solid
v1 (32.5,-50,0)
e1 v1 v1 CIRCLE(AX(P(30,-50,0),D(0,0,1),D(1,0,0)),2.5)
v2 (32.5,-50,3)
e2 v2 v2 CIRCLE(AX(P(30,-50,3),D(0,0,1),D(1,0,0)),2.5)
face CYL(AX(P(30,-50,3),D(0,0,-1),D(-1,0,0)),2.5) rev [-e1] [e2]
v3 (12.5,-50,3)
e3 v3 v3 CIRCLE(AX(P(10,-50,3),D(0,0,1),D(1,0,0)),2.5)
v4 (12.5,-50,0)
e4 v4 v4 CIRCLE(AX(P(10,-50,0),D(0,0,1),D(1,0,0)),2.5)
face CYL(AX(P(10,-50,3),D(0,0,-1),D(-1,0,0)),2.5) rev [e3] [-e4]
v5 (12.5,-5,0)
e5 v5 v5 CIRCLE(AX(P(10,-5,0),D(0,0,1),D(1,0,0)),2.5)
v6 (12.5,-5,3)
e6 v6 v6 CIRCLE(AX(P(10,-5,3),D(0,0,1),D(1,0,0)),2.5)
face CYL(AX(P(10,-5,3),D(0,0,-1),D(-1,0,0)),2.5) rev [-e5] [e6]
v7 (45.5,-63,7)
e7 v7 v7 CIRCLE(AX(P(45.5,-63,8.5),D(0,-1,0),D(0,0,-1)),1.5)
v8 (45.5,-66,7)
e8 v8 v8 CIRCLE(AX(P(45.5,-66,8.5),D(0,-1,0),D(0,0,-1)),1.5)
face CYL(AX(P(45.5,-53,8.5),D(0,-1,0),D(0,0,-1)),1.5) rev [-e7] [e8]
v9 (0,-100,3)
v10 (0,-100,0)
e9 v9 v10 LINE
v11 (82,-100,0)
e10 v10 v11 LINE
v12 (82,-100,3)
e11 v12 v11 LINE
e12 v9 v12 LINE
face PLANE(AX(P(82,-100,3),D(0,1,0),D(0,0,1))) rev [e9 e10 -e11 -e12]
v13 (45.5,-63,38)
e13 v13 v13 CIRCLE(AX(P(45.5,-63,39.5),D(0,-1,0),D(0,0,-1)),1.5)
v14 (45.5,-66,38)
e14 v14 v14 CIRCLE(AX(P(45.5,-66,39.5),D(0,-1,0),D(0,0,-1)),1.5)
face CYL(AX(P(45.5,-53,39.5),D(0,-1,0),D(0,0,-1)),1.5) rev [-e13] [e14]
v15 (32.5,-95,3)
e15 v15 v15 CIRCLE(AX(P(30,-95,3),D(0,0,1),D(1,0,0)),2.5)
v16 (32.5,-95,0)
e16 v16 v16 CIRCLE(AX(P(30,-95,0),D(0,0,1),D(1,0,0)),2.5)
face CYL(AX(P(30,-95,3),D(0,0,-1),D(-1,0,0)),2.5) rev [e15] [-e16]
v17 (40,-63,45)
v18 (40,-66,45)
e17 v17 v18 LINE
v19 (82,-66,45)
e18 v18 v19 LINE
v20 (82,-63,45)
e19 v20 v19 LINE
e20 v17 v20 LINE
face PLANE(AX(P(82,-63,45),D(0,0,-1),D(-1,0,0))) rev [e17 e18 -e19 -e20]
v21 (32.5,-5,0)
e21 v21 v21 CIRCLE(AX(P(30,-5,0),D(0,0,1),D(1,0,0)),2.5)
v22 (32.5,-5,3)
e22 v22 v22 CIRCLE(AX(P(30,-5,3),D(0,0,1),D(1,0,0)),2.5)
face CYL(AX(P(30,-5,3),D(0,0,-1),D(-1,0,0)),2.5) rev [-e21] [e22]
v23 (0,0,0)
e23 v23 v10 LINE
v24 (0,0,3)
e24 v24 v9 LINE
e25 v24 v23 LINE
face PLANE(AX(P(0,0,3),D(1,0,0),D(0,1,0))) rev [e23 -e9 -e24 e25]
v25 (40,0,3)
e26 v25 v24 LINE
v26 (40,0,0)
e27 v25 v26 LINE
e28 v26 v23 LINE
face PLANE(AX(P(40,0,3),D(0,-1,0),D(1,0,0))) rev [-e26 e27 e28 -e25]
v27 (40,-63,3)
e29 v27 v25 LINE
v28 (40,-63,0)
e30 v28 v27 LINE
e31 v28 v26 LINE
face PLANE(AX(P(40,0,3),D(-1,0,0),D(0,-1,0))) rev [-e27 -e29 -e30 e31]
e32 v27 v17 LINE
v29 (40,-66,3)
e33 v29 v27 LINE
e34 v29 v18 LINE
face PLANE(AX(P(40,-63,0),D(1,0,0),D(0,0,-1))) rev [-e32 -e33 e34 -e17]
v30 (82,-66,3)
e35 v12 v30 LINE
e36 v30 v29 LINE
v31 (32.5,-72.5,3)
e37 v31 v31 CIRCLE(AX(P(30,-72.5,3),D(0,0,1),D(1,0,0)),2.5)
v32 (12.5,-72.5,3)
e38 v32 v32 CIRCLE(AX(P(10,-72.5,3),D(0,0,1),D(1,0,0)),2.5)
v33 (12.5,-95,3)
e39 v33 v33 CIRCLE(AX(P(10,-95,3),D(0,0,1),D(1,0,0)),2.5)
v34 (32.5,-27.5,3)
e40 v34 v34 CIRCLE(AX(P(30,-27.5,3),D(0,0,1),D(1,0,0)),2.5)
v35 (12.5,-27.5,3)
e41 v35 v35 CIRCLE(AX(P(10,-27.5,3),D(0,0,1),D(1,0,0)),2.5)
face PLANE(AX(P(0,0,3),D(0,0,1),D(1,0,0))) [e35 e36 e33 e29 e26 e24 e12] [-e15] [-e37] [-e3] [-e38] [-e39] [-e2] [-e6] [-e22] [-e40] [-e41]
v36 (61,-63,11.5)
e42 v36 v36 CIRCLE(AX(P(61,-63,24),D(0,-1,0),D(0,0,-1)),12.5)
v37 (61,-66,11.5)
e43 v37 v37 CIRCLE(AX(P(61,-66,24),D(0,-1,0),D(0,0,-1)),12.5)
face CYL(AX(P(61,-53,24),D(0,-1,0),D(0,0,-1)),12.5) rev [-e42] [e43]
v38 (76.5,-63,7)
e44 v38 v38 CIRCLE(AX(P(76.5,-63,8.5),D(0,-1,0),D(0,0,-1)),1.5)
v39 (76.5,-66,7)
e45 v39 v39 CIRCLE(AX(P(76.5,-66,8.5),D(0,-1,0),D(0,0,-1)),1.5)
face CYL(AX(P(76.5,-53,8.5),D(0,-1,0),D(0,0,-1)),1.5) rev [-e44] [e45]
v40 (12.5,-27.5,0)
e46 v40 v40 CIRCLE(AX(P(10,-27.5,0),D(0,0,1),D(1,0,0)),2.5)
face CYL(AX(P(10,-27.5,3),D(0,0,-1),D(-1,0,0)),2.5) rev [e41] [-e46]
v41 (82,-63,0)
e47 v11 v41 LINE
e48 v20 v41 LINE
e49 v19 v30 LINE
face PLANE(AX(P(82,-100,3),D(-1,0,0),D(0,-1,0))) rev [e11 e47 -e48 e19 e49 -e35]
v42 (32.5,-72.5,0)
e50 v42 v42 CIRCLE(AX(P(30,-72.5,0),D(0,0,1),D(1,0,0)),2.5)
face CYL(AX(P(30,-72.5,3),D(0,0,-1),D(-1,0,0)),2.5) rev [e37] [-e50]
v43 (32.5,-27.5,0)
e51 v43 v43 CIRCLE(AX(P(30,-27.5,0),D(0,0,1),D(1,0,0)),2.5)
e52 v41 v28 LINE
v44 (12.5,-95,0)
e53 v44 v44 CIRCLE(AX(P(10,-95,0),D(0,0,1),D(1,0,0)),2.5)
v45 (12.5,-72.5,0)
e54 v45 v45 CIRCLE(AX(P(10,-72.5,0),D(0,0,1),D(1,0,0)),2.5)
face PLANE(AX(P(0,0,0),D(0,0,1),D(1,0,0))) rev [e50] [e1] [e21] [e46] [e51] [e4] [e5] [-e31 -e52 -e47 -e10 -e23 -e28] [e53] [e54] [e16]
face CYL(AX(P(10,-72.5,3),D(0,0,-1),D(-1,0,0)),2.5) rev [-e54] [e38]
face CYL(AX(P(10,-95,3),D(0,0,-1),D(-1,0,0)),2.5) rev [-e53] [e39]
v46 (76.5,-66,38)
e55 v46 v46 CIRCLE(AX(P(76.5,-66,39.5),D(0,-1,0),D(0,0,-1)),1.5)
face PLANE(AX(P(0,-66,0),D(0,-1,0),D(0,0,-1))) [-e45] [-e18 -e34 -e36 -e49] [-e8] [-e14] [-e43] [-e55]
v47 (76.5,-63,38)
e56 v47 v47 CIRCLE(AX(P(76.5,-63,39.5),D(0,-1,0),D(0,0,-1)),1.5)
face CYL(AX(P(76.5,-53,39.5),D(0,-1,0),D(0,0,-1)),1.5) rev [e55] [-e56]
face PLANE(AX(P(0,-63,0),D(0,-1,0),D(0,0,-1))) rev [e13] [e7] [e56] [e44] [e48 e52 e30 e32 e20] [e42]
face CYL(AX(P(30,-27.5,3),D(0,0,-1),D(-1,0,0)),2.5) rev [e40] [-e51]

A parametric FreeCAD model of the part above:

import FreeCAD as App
import Part
import Sketcher

V = App.Vector
Q = App.Units.Quantity

doc = App.newDocument("Part")
body = doc.addObject("PartDesign::Body", "Body")

# Sketch on XY plane
sketch1 = body.newObject("Sketcher::SketchObject", "Sketch")
sketch1.AttachmentSupport = (doc.getObject("XY_Plane"), [""])
sketch1.MapMode = "FlatFace"
sketch1.addGeometry(Part.LineSegment(V(40, 0, 0), V(0, 0, 0)), False)
sketch1.addGeometry(Part.LineSegment(V(0, 0, 0), V(0, -100, 0)), False)
sketch1.addGeometry(Part.LineSegment(V(0, -100, 0), V(82, -100, 0)), False)
sketch1.addGeometry(Part.LineSegment(V(82, -100, 0), V(82, -66, 0)), False)
sketch1.addGeometry(Part.LineSegment(V(82, -66, 0), V(40, -66, 0)), False)
sketch1.addGeometry(Part.LineSegment(V(40, -66, 0), V(40, 0, 0)), False)
sketch1.addGeometry(Part.Circle(V(10, -95, 0), V(0, 0, 1), 2.5), False)
sketch1.addGeometry(Part.Circle(V(10, -72.5, 0), V(0, 0, 1), 2.5), False)
sketch1.addGeometry(Part.Circle(V(30, -95, 0), V(0, 0, 1), 2.5), False)
sketch1.addGeometry(Part.Circle(V(30, -72.5, 0), V(0, 0, 1), 2.5), False)
sketch1.addGeometry(Part.Circle(V(10, -50, 0), V(0, 0, 1), 2.5), False)
sketch1.addGeometry(Part.Circle(V(10, -27.5, 0), V(0, 0, 1), 2.5), False)
sketch1.addGeometry(Part.Circle(V(10, -5, 0), V(0, 0, 1), 2.5), False)
sketch1.addGeometry(Part.Circle(V(30, -50, 0), V(0, 0, 1), 2.5), False)
sketch1.addGeometry(Part.Circle(V(30, -27.5, 0), V(0, 0, 1), 2.5), False)
sketch1.addGeometry(Part.Circle(V(30, -5, 0), V(0, 0, 1), 2.5), False)
sketch1.addConstraint(Sketcher.Constraint("Coincident", 0, 2, 1, 1))
sketch1.addConstraint(Sketcher.Constraint("Coincident", 1, 2, 2, 1))
sketch1.addConstraint(Sketcher.Constraint("Coincident", 2, 2, 3, 1))
sketch1.addConstraint(Sketcher.Constraint("Coincident", 3, 2, 4, 1))
sketch1.addConstraint(Sketcher.Constraint("Coincident", 4, 2, 5, 1))
sketch1.addConstraint(Sketcher.Constraint("Coincident", 5, 2, 0, 1))
sketch1.addConstraint(Sketcher.Constraint("Horizontal", 0))
sketch1.addConstraint(Sketcher.Constraint("Vertical", 1))
sketch1.addConstraint(Sketcher.Constraint("Horizontal", 2))
sketch1.addConstraint(Sketcher.Constraint("Vertical", 3))
sketch1.addConstraint(Sketcher.Constraint("Horizontal", 4))
sketch1.addConstraint(Sketcher.Constraint("Vertical", 5))
sketch1.addConstraint(Sketcher.Constraint("Coincident", 0, 2, -1, 1))
sketch1.addConstraint(Sketcher.Constraint("Equal", 6, 7))
sketch1.addConstraint(Sketcher.Constraint("Equal", 7, 8))
sketch1.addConstraint(Sketcher.Constraint("Equal", 8, 9))
sketch1.addConstraint(Sketcher.Constraint("Equal", 9, 10))
sketch1.addConstraint(Sketcher.Constraint("Equal", 10, 11))
sketch1.addConstraint(Sketcher.Constraint("Equal", 11, 12))
sketch1.addConstraint(Sketcher.Constraint("Equal", 12, 13))
sketch1.addConstraint(Sketcher.Constraint("Equal", 13, 14))
sketch1.addConstraint(Sketcher.Constraint("Equal", 14, 15))
sketch1.addConstraint(Sketcher.Constraint("Horizontal", 6, 3, 8, 3))
sketch1.addConstraint(Sketcher.Constraint("Horizontal", 7, 3, 9, 3))
sketch1.addConstraint(Sketcher.Constraint("Horizontal", 10, 3, 13, 3))
sketch1.addConstraint(Sketcher.Constraint("Horizontal", 11, 3, 14, 3))
sketch1.addConstraint(Sketcher.Constraint("Horizontal", 12, 3, 15, 3))
sketch1.addConstraint(Sketcher.Constraint("Vertical", 6, 3, 7, 3))
sketch1.addConstraint(Sketcher.Constraint("Vertical", 8, 3, 9, 3))
sketch1.addConstraint(Sketcher.Constraint("Vertical", 7, 3, 10, 3))
sketch1.addConstraint(Sketcher.Constraint("Vertical", 10, 3, 11, 3))
sketch1.addConstraint(Sketcher.Constraint("Vertical", 11, 3, 12, 3))
sketch1.addConstraint(Sketcher.Constraint("Vertical", 9, 3, 13, 3))
sketch1.addConstraint(Sketcher.Constraint("Vertical", 13, 3, 14, 3))
sketch1.addConstraint(Sketcher.Constraint("Vertical", 14, 3, 15, 3))
sketch1.addConstraint(Sketcher.Constraint("Diameter", 6, Q("5 mm")))
sketch1.addConstraint(Sketcher.Constraint("DistanceX", 0, 2, 0, 1, Q("40 mm")))
sketch1.addConstraint(Sketcher.Constraint("DistanceX", 2, 1, 2, 2, Q("82 mm")))
sketch1.addConstraint(Sketcher.Constraint("DistanceY", 1, 2, 1, 1, Q("100 mm")))
sketch1.addConstraint(Sketcher.Constraint("DistanceY", 3, 1, 3, 2, Q("34 mm")))
sketch1.addConstraint(Sketcher.Constraint("DistanceX", -1, 1, 6, 3, Q("10 mm")))
sketch1.addConstraint(Sketcher.Constraint("DistanceY", 6, 3, -1, 1, Q("95 mm")))
sketch1.addConstraint(Sketcher.Constraint("DistanceX", -1, 1, 8, 3, Q("30 mm")))
sketch1.addConstraint(Sketcher.Constraint("DistanceY", 10, 3, -1, 1, Q("50 mm")))
sketch1.addConstraint(Sketcher.Constraint("DistanceY", 12, 3, -1, 1, Q("5 mm")))
sketch1.addConstraint(Sketcher.Constraint("DistanceY", 7, 3, 11, 3, Q("45 mm")))
sketch1.addConstraint(Sketcher.Constraint("DistanceY", 7, 3, -1, 1, Q("72.5 mm")))
pad1 = body.newObject("PartDesign::Pad", "Pad")
pad1.Profile = sketch1
pad1.Length = 3

# Sketch on XZ plane
sketch2 = body.newObject("Sketcher::SketchObject", "Sketch001")
sketch2.AttachmentSupport = (doc.getObject("XZ_Plane"), [""])
sketch2.MapMode = "FlatFace"
sketch2.AttachmentOffset = App.Placement(V(0, 0, 66), App.Rotation())
sketch2.addGeometry(Part.LineSegment(V(40, 0, 0), V(40, 45, 0)), False)
sketch2.addGeometry(Part.LineSegment(V(40, 45, 0), V(82, 45, 0)), False)
sketch2.addGeometry(Part.LineSegment(V(82, 45, 0), V(82, 0, 0)), False)
sketch2.addGeometry(Part.LineSegment(V(82, 0, 0), V(40, 0, 0)), False)
sketch2.addConstraint(Sketcher.Constraint("Coincident", 0, 2, 1, 1))
sketch2.addConstraint(Sketcher.Constraint("Coincident", 1, 2, 2, 1))
sketch2.addConstraint(Sketcher.Constraint("Coincident", 2, 2, 3, 1))
sketch2.addConstraint(Sketcher.Constraint("Coincident", 3, 2, 0, 1))
sketch2.addConstraint(Sketcher.Constraint("Vertical", 0))
sketch2.addConstraint(Sketcher.Constraint("Horizontal", 1))
sketch2.addConstraint(Sketcher.Constraint("Vertical", 2))
sketch2.addConstraint(Sketcher.Constraint("Horizontal", 3))
sketch2.addConstraint(Sketcher.Constraint("PointOnObject", 2, 2, -1))
sketch2.addConstraint(Sketcher.Constraint("DistanceX", 1, 1, 1, 2, Q("42 mm")))
sketch2.addConstraint(Sketcher.Constraint("DistanceY", 0, 1, 0, 2, Q("45 mm")))
sketch2.addConstraint(Sketcher.Constraint("DistanceX", -1, 1, 0, 2, Q("40 mm")))
pad2 = body.newObject("PartDesign::Pad", "Pad001")
pad2.Profile = sketch2
pad2.Length = 3
pad2.Reversed = True

# Sketch on XZ plane
sketch3 = body.newObject("Sketcher::SketchObject", "Sketch002")
sketch3.AttachmentSupport = (doc.getObject("XZ_Plane"), [""])
sketch3.MapMode = "FlatFace"
sketch3.AttachmentOffset = App.Placement(V(0, 0, 66), App.Rotation())
sketch3.addGeometry(Part.Circle(V(61, 24, 0), V(0, 0, 1), 12.5), False)
sketch3.addGeometry(Part.Circle(V(45.5, 39.5, 0), V(0, 0, 1), 1.5), False)
sketch3.addGeometry(Part.Circle(V(45.5, 8.5, 0), V(0, 0, 1), 1.5), False)
sketch3.addGeometry(Part.Circle(V(76.5, 8.5, 0), V(0, 0, 1), 1.5), False)
sketch3.addGeometry(Part.Circle(V(76.5, 39.5, 0), V(0, 0, 1), 1.5), False)
sketch3.addConstraint(Sketcher.Constraint("Equal", 1, 2))
sketch3.addConstraint(Sketcher.Constraint("Equal", 2, 3))
sketch3.addConstraint(Sketcher.Constraint("Equal", 3, 4))
sketch3.addConstraint(Sketcher.Constraint("Horizontal", 2, 3, 3, 3))
sketch3.addConstraint(Sketcher.Constraint("Horizontal", 1, 3, 4, 3))
sketch3.addConstraint(Sketcher.Constraint("Vertical", 1, 3, 2, 3))
sketch3.addConstraint(Sketcher.Constraint("Vertical", 3, 3, 4, 3))
sketch3.addConstraint(Sketcher.Constraint("Diameter", 0, Q("25 mm")))
sketch3.addConstraint(Sketcher.Constraint("Diameter", 1, Q("3 mm")))
sketch3.addConstraint(Sketcher.Constraint("DistanceX", -1, 1, 0, 3, Q("61 mm")))
sketch3.addConstraint(Sketcher.Constraint("DistanceY", -1, 1, 0, 3, Q("24 mm")))
sketch3.addConstraint(Sketcher.Constraint("DistanceY", 2, 3, 1, 3, Q("31 mm")))
sketch3.addConstraint(Sketcher.Constraint("DistanceX", 2, 3, 3, 3, Q("31 mm")))
sketch3.addConstraint(Sketcher.Constraint("DistanceX", -1, 1, 1, 3, Q("45.5 mm")))
sketch3.addConstraint(Sketcher.Constraint("DistanceY", -1, 1, 1, 3, Q("39.5 mm")))
pocket1 = body.newObject("PartDesign::Pocket", "Pocket")
pocket1.Profile = sketch3
pocket1.Length = 13

doc.recompute()
